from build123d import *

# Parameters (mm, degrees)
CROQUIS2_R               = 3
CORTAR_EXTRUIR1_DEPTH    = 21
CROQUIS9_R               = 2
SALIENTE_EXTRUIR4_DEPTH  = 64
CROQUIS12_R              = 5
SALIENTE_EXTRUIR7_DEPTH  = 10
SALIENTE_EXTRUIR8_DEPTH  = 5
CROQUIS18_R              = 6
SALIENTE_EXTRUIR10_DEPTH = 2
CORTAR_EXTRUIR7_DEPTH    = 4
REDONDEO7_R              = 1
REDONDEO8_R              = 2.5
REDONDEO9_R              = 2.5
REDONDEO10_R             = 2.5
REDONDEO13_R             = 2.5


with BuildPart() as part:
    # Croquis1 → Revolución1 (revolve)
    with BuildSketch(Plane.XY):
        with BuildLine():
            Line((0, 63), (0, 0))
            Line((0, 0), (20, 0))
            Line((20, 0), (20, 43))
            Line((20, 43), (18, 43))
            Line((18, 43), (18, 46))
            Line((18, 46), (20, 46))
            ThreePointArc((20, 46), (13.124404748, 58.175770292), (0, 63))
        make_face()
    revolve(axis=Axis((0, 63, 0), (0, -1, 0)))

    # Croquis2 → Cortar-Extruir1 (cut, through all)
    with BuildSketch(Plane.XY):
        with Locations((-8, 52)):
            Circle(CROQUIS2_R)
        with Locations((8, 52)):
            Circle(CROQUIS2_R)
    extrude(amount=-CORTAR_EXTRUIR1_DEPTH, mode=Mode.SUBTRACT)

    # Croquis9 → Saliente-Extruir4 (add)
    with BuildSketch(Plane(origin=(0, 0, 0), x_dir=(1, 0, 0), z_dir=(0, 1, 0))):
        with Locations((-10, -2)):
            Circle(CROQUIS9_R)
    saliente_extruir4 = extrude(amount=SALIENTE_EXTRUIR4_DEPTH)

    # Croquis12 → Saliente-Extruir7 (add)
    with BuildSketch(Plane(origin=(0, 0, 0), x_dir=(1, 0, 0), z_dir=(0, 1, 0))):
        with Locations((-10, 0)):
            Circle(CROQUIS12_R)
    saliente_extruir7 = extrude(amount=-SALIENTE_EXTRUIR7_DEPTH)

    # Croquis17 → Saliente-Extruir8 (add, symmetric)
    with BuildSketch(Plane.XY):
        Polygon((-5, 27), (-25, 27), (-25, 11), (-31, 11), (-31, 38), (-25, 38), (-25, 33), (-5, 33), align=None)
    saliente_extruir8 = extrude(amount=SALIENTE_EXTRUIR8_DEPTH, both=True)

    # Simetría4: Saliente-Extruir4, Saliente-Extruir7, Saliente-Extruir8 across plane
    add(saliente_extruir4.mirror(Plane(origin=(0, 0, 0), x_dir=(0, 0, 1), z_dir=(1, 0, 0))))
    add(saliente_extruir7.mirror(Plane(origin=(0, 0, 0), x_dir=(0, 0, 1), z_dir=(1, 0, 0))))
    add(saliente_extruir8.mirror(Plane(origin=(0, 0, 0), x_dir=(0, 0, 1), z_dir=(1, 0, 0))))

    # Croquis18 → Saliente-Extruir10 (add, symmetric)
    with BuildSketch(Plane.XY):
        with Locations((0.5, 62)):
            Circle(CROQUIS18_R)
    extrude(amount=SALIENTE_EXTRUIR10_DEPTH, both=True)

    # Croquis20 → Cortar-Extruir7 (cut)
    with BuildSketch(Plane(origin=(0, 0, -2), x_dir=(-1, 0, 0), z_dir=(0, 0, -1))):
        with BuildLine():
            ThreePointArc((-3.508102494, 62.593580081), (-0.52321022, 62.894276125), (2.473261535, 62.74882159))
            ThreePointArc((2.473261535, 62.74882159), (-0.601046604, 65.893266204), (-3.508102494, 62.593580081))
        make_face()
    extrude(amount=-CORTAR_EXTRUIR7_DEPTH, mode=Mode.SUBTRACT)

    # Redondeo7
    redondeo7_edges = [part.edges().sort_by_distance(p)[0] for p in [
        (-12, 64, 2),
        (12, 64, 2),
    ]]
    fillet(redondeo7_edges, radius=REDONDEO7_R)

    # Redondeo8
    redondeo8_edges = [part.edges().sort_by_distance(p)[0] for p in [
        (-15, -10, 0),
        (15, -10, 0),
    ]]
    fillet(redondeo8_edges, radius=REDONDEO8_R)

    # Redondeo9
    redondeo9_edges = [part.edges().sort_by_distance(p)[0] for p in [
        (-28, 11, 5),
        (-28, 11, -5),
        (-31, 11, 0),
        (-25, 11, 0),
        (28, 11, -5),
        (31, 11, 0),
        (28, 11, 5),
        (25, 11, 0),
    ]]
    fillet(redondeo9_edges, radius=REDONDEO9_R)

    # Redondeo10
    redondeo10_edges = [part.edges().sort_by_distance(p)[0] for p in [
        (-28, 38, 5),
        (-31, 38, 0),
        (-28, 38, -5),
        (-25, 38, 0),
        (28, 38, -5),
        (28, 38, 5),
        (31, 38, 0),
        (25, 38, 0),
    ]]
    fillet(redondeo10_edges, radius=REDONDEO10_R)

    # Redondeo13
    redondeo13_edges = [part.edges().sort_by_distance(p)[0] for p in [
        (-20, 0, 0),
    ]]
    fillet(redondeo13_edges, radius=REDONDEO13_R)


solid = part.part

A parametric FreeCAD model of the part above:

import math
import FreeCAD as App
import Part
import Sketcher
from FreeCAD import Vector


def edges_at(feature, points):
    """Names of the edges that pass closest to the given points."""
    edges = feature.Shape.Edges
    near = lambda p: min(range(len(edges)), key=lambda i: edges[i].distToShape(Part.Vertex(*p))[0])
    return sorted({f"Edge{near(p) + 1}" for p in points})


def add_polygon(sketch, points):
    """Adds a closed chain of lines whose ends are joined by coincident constraints."""
    first, n = sketch.GeometryCount, len(points)
    for a, b in zip(points, points[1:] + points[:1]):
        sketch.addGeometry(Part.LineSegment(App.Vector(*a, 0), App.Vector(*b, 0)), False)
    for i in range(n):
        sketch.addConstraint(Sketcher.Constraint("Coincident", first + i, 2, first + (i + 1) % n, 1))

doc = App.newDocument("Part")
body = doc.addObject("PartDesign::Body", "Body")

# Sketch on XY plane
sketch1 = doc.addObject("Sketcher::SketchObject", "Sketch")
body.addObject(sketch1)
sketch1.AttachmentSupport = (doc.XY_Plane, [""])
sketch1.MapMode = "FlatFace"
sketch1.addGeometry([
    Part.LineSegment(Vector(0, 63, 0), Vector(0, 0, 0)),  # 0
    Part.LineSegment(Vector(0, 0, 0), Vector(20, 0, 0)),  # 1
    Part.LineSegment(Vector(20, 0, 0), Vector(20, 43, 0)),  # 2
    Part.LineSegment(Vector(20, 43, 0), Vector(18, 43, 0)),  # 3
    Part.LineSegment(Vector(18, 43, 0), Vector(18, 46, 0)),  # 4
    Part.LineSegment(Vector(18, 46, 0), Vector(20, 46, 0)),  # 5
    Part.ArcOfCircle(Part.Circle(Vector(0, 42.7, 0), Vector(0, 0, 1), 20.3), math.radians(9), math.radians(90)),  # 6
], False)
sketch1.addConstraint([
    Sketcher.Constraint("Coincident", 0, 2, 1, 1),
    Sketcher.Constraint("Coincident", 1, 2, 2, 1),
    Sketcher.Constraint("Coincident", 2, 2, 3, 1),
    Sketcher.Constraint("Coincident", 3, 2, 4, 1),
    Sketcher.Constraint("Coincident", 4, 2, 5, 1),
    Sketcher.Constraint("Coincident", 5, 2, 6, 1),
    Sketcher.Constraint("Coincident", 6, 2, 0, 1),
    Sketcher.Constraint("Vertical", 0),
    Sketcher.Constraint("Horizontal", 1),
    Sketcher.Constraint("Vertical", 2),
    Sketcher.Constraint("Horizontal", 3),
    Sketcher.Constraint("Vertical", 4),
    Sketcher.Constraint("Horizontal", 5),
    Sketcher.Constraint("Coincident", 0, 2, -1, 1),
    Sketcher.Constraint("PointOnObject", 6, 3, -2),
    Sketcher.Constraint("Vertical", 2, 2, 5, 2),
    Sketcher.Constraint("DistanceX", 1, 1, 1, 2, 20.0),
    Sketcher.Constraint("DistanceX", 3, 2, 3, 1, 2.0),
    Sketcher.Constraint("DistanceY", 0, 2, 0, 1, 63.0),
    Sketcher.Constraint("DistanceY", 2, 1, 2, 2, 43.0),
    Sketcher.Constraint("DistanceY", 4, 1, 4, 2, 3.0),
])
revolution = doc.addObject("PartDesign::Revolution", "Revolution")
body.addObject(revolution)
revolution.Profile = sketch1
revolution.ReferenceAxis = (sketch1, ["V_Axis"])
revolution.Angle = 360

# Sketch on XY plane
sketch2 = doc.addObject("Sketcher::SketchObject", "Sketch001")
body.addObject(sketch2)
sketch2.AttachmentSupport = (doc.XY_Plane, [""])
sketch2.MapMode = "FlatFace"
sketch2.addGeometry([
    Part.Circle(Vector(-8, 52, 0), Vector(0, 0, 1), 3),
    Part.Circle(Vector(8, 52, 0), Vector(0, 0, 1), 3),
], False)
sketch2.addConstraint([
    Sketcher.Constraint("Equal", 0, 1),
    Sketcher.Constraint("Symmetric", 0, 3, 1, 3, -2),
    Sketcher.Constraint("Diameter", 0, 6.0),
    Sketcher.Constraint("DistanceX", 0, 3, -1, 1, 8.0),
    Sketcher.Constraint("DistanceY", -1, 1, 0, 3, 52.0),
])
pocket1 = doc.addObject("PartDesign::Pocket", "Pocket")
body.addObject(pocket1)
pocket1.Profile = sketch2
pocket1.Type = "ThroughAll"

# Sketch on XZ plane
sketch3 = doc.addObject("Sketcher::SketchObject", "Sketch002")
body.addObject(sketch3)
sketch3.AttachmentSupport = (doc.XZ_Plane, [""])
sketch3.MapMode = "FlatFace"
sketch3.addGeometry(Part.Circle(Vector(-10, 2, 0), Vector(0, 0, 1), 2), False)
sketch3.addConstraint([
    Sketcher.Constraint("Diameter", 0, 4.0),
    Sketcher.Constraint("DistanceX", 0, 3, -1, 1, 10.0),
    Sketcher.Constraint("DistanceY", -1, 1, 0, 3, 2.0),
])
pad1 = doc.addObject("PartDesign::Pad", "Pad")
body.addObject(pad1)
pad1.Profile = sketch3
pad1.Length = 64
pad1.Reversed = True

# Sketch on XZ plane
sketch4 = doc.addObject("Sketcher::SketchObject", "Sketch003")
body.addObject(sketch4)
sketch4.AttachmentSupport = (doc.XZ_Plane, [""])
sketch4.MapMode = "FlatFace"
sketch4.addGeometry(Part.Circle(Vector(-10, 0, 0), Vector(0, 0, 1), 5), False)
sketch4.addConstraint([
    Sketcher.Constraint("PointOnObject", 0, 3, -1),
    Sketcher.Constraint("Diameter", 0, 10.0),
    Sketcher.Constraint("DistanceX", 0, 3, -1, 1, 10.0),
])
pad2 = doc.addObject("PartDesign::Pad", "Pad001")
body.addObject(pad2)
pad2.Profile = sketch4
pad2.Length = 10

# Sketch on XY plane
sketch5 = doc.addObject("Sketcher::SketchObject", "Sketch004")
body.addObject(sketch5)
sketch5.AttachmentSupport = (doc.XY_Plane, [""])
sketch5.MapMode = "FlatFace"
add_polygon(sketch5, [(-25, 27), (-5, 27), (-5, 33), (-25, 33), (-25, 38), (-31, 38), (-31, 11), (-25, 11)])  # lines 0-7
sketch5.addConstraint([
    Sketcher.Constraint("Horizontal", 0),
    Sketcher.Constraint("Vertical", 1),
    Sketcher.Constraint("Horizontal", 2),
    Sketcher.Constraint("Vertical", 3),
    Sketcher.Constraint("Horizontal", 4),
    Sketcher.Constraint("Vertical", 5),
    Sketcher.Constraint("Horizontal", 6),
    Sketcher.Constraint("Vertical", 7),
    Sketcher.Constraint("Vertical", 3, 2, 6, 2),
    Sketcher.Constraint("Equal", 6, 1),
    Sketcher.Constraint("DistanceX", 0, 1, 0, 2, 20.0),
    Sketcher.Constraint("DistanceX", 4, 2, 4, 1, 6.0),
    Sketcher.Constraint("DistanceY", 3, 1, 3, 2, 5.0),
    Sketcher.Constraint("DistanceY", 5, 2, 5, 1, 27.0),
    Sketcher.Constraint("DistanceX", 0, 2, -1, 1, 5.0),
    Sketcher.Constraint("DistanceY", -1, 1, 0, 2, 27.0),
])
pad3 = doc.addObject("PartDesign::Pad", "Pad002")
body.addObject(pad3)
pad3.Profile = sketch5
pad3.Length = 10
pad3.Midplane = True
doc.recompute()

mirrored = doc.addObject("PartDesign::Mirrored", "Mirrored")
body.addObject(mirrored)
mirrored.Originals = [pad1, pad2, pad3]
mirrored.MirrorPlane = (doc.YZ_Plane, [""])
body.Tip = mirrored

# Sketch on XY plane
sketch6 = doc.addObject("Sketcher::SketchObject", "Sketch005")
body.addObject(sketch6)
sketch6.AttachmentSupport = (doc.XY_Plane, [""])
sketch6.MapMode = "FlatFace"
sketch6.addGeometry(Part.Circle(Vector(0, 62, 0), Vector(0, 0, 1), 6), False)
sketch6.addConstraint([
    Sketcher.Constraint("Diameter", 0, 12.0),
    Sketcher.Constraint("DistanceY", -1, 1, 0, 3, 62.0),
    Sketcher.Constraint("DistanceX", -1, 1, 0, 3, 0.5),
])
pad4 = doc.addObject("PartDesign::Pad", "Pad003")
body.addObject(pad4)
pad4.Profile = sketch6
pad4.Length = 4
pad4.Midplane = True

# Sketch on XY plane
sketch7 = doc.addObject("Sketcher::SketchObject", "Sketch006")
body.addObject(sketch7)
sketch7.AttachmentSupport = (doc.XY_Plane, [""])
sketch7.MapMode = "FlatFace"
sketch7.AttachmentOffset = App.Placement(Vector(0, 0, -2), App.Rotation())
sketch7.addGeometry([
    Part.ArcOfCircle(Part.Circle(Vector(0, 42.7, 0), Vector(0, 0, 1), 20.2), math.radians(79.98), math.radians(97.04)),
    Part.ArcOfCircle(Part.Circle(Vector(0.5, 62.9, 0), Vector(0, 0, 1), 3), math.radians(-6), math.radians(183)),
], False)
sketch7.addConstraint([
    Sketcher.Constraint("Coincident", 0, 1, 1, 1),
    Sketcher.Constraint("Coincident", 1, 2, 0, 2),
    Sketcher.Constraint("PointOnObject", 0, 3, -2),
    Sketcher.Constraint("Radius", 1, 3.0),
    Sketcher.Constraint("Radius", 0, 20.165771),
    Sketcher.Constraint("DistanceX", -1, 1, 1, 3, 0.52321),
    Sketcher.Constraint("DistanceY", -1, 1, 0, 1, 62.59358),
    Sketcher.Constraint("DistanceX", 1, 2, -1, 1, 2.473262),
])
pocket2 = doc.addObject("PartDesign::Pocket", "Pocket001")
body.addObject(pocket2)
pocket2.Profile = sketch7
pocket2.Length = 4
pocket2.Reversed = True
doc.recompute()

fillet = doc.addObject("PartDesign::Fillet", "Fillet")
body.addObject(fillet)
fillet.Base = (pocket2, edges_at(pocket2, [(-12, 64, 2), (12, 64, 2)]))
fillet.Radius = 1
doc.recompute()

fillet2 = doc.addObject("PartDesign::Fillet", "Fillet001")
body.addObject(fillet2)
fillet2.Base = (fillet, edges_at(fillet, [(-15, -10, 0), (15, -10, 0)]))
fillet2.Radius = 2.5
doc.recompute()

fillet3 = doc.addObject("PartDesign::Fillet", "Fillet002")
body.addObject(fillet3)
fillet3.Base = (fillet2, edges_at(fillet2, [
    (-28, 11, 5),
    (-28, 11, -5),
    (-31, 11, 0),
    (-25, 11, 0),
    (28, 11, -5),
    (31, 11, 0),
    (28, 11, 5),
    (25, 11, 0),
]))
fillet3.Radius = 2.5
doc.recompute()

fillet4 = doc.addObject("PartDesign::Fillet", "Fillet003")
body.addObject(fillet4)
fillet4.Base = (fillet3, edges_at(fillet3, [
    (-28, 38, 5),
    (-31, 38, 0),
    (-28, 38, -5),
    (-25, 38, 0),
    (28, 38, -5),
    (28, 38, 5),
    (31, 38, 0),
    (25, 38, 0),
]))
fillet4.Radius = 2.5
doc.recompute()

fillet5 = doc.addObject("PartDesign::Fillet", "Fillet004")
body.addObject(fillet5)
fillet5.Base = (fillet4, edges_at(fillet4, [(-20, 0, 0)]))
fillet5.Radius = 2.5

doc.recompute()
